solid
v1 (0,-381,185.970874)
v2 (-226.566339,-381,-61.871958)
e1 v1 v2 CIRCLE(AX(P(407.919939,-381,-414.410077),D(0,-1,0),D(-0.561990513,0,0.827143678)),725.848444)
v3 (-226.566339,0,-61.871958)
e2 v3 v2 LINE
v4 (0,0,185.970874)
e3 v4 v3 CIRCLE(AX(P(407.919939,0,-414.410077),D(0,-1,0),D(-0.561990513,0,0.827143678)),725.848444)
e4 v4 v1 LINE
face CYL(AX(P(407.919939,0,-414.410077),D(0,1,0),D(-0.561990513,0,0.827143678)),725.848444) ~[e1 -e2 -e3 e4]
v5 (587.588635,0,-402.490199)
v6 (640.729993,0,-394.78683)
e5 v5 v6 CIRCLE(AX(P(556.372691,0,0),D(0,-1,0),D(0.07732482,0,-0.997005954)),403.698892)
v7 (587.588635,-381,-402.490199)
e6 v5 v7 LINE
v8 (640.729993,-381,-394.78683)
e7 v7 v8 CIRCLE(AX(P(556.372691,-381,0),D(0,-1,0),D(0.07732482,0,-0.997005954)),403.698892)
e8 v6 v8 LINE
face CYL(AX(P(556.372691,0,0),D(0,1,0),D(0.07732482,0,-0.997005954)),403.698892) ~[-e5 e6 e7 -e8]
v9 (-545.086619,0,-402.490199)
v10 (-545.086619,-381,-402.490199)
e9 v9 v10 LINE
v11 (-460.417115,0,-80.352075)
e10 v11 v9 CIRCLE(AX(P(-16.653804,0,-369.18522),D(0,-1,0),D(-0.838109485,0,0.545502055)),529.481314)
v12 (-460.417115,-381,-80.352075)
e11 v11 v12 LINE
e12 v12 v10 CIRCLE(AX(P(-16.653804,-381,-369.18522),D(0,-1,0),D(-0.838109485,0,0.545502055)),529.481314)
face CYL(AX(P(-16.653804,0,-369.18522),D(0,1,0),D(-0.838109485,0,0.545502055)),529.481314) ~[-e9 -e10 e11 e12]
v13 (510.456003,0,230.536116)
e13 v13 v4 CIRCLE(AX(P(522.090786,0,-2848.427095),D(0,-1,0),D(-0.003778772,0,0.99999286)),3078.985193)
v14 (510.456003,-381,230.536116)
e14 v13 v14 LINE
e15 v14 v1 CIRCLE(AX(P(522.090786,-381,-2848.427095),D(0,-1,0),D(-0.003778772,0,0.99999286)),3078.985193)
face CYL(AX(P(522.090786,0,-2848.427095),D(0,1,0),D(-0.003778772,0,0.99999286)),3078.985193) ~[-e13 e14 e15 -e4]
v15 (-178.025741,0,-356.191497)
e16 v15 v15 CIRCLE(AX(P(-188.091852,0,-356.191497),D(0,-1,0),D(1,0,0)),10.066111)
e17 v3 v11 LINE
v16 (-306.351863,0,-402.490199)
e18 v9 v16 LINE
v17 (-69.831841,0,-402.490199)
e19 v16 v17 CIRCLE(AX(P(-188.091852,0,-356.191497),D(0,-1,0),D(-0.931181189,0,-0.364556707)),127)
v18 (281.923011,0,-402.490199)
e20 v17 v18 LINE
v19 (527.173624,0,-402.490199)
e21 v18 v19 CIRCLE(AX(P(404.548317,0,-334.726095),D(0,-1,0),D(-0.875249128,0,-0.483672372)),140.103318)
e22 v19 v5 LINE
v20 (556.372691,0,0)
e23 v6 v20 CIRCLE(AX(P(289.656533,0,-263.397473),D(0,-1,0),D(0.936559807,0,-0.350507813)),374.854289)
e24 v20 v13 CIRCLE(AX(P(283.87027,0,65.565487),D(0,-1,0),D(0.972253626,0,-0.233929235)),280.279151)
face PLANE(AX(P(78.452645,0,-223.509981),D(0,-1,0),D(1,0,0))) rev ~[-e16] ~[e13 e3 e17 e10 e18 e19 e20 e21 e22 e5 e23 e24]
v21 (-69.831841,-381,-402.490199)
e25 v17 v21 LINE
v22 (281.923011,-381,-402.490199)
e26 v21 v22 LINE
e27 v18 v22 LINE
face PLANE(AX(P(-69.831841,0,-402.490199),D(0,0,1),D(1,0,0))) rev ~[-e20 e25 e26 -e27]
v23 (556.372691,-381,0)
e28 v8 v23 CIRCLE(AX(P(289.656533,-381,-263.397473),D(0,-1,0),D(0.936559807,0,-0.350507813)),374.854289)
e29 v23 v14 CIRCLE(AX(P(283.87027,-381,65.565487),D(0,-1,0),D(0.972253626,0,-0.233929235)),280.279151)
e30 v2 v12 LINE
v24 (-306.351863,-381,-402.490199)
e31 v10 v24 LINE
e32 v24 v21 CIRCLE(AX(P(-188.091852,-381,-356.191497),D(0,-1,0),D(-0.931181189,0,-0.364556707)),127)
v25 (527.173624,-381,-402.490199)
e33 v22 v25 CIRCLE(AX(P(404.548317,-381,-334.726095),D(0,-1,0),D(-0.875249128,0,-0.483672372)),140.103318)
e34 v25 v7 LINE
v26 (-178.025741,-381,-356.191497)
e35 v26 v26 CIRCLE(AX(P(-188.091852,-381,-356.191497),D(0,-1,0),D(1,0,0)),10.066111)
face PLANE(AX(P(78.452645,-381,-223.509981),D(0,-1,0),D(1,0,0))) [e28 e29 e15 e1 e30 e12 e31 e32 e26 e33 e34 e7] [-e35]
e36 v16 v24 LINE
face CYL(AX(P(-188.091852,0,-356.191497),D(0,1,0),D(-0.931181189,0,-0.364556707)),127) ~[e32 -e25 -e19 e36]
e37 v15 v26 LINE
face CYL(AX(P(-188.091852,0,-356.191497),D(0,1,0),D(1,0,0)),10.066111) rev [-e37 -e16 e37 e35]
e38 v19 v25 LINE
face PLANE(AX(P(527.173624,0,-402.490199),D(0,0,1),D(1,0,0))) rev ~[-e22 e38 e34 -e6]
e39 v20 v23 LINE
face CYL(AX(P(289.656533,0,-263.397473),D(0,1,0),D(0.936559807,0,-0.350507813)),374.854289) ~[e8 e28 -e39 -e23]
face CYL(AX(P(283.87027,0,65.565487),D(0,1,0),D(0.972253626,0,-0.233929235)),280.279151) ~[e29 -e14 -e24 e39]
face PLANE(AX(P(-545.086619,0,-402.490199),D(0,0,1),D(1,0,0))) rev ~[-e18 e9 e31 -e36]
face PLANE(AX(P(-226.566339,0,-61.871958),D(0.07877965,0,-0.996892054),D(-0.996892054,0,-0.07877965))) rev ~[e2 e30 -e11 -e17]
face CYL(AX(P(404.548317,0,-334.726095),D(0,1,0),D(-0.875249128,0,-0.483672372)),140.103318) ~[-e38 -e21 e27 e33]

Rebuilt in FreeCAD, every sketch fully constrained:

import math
import FreeCAD as App
import Part
import Sketcher
Q = App.Units.Quantity

doc = App.newDocument("Part")
params = doc.addObject("Spreadsheet::Sheet", "Params")
for row, (alias, value) in enumerate([
    ("sketch1_radius", "5 in"),
    ("pad1_length", "15 in"),
], start=1):
    params.set(f"A{row}", alias)
    params.set(f"B{row}", "=" + value)
    params.setAlias(f"B{row}", alias)

body = doc.addObject("PartDesign::Body", "Body")

sketch1 = doc.addObject("Sketcher::SketchObject", "Sketch")
body.addObject(sketch1)
sketch1.AttachmentSupport = (doc.XZ_Plane, [""])
sketch1.MapMode = "FlatFace"
sketch1.addGeometry([
    Part.ArcOfCircle(Part.Circle(App.Vector(-188, -356, 0), App.Vector(0, 0, 1), 127), math.radians(-159), math.radians(-21)),
    Part.LineSegment(App.Vector(-70, -402, 0), App.Vector(282, -402, 0)),
    Part.ArcOfCircle(Part.Circle(App.Vector(405, -335, 0), App.Vector(0, 0, 1), 140), math.radians(-151), math.radians(-29)),
    Part.LineSegment(App.Vector(527, -402, 0), App.Vector(588, -402, 0)),
    Part.ArcOfCircle(Part.Circle(App.Vector(556, 0, 0), App.Vector(0, 0, 1), 404), math.radians(-85.57), math.radians(-77.94)),
    Part.ArcOfCircle(Part.Circle(App.Vector(290, -263, 0), App.Vector(0, 0, 1), 375), math.radians(-21), math.radians(45)),
    Part.ArcOfCircle(Part.Circle(App.Vector(284, 66, 0), App.Vector(0, 0, 1), 280), math.radians(-14), math.radians(36)),
    Part.ArcOfCircle(Part.Circle(App.Vector(522, -2848, 0), App.Vector(0, 0, 1), 3079), math.radians(90.22), math.radians(99.76)),
    Part.ArcOfCircle(Part.Circle(App.Vector(408, -414, 0), App.Vector(0, 0, 1), 726), math.radians(124), math.radians(151)),
    Part.LineSegment(App.Vector(-227, -62, 0), App.Vector(-460, -80, 0)),
    Part.ArcOfCircle(Part.Circle(App.Vector(-17, -369, 0), App.Vector(0, 0, 1), 529), math.radians(147), math.radians(184)),
    Part.LineSegment(App.Vector(-545, -402, 0), App.Vector(-306, -402, 0)),
    Part.Circle(App.Vector(-188, -356, 0), App.Vector(0, 0, 1), 10),
], False)
sketch1.addConstraint([
    Sketcher.Constraint("Coincident", 0, 2, 1, 1),
    Sketcher.Constraint("Coincident", 1, 2, 2, 1),
    Sketcher.Constraint("Coincident", 2, 2, 3, 1),
    Sketcher.Constraint("Coincident", 3, 2, 4, 1),
    Sketcher.Constraint("Coincident", 4, 2, 5, 1),
    Sketcher.Constraint("Coincident", 5, 2, 6, 1),
    Sketcher.Constraint("Coincident", 6, 2, 7, 1),
    Sketcher.Constraint("Coincident", 7, 2, 8, 1),
    Sketcher.Constraint("Coincident", 8, 2, 9, 1),
    Sketcher.Constraint("Coincident", 9, 2, 10, 1),
    Sketcher.Constraint("Coincident", 10, 2, 11, 1),
    Sketcher.Constraint("Coincident", 11, 2, 0, 1),
    Sketcher.Constraint("Horizontal", 1),
    Sketcher.Constraint("Horizontal", 3),
    Sketcher.Constraint("Horizontal", 11),
    Sketcher.Constraint("Coincident", 12, 3, 0, 3),
    Sketcher.Constraint("Coincident", 5, 2, 4, 3),
    Sketcher.Constraint("PointOnObject", 4, 3, -1),
    Sketcher.Constraint("Horizontal", 1, 2, 2, 2),
    Sketcher.Constraint("Radius", 0, Q("5 in")),
    Sketcher.Constraint("Diameter", 12, Q("20.132222 mm")),
    Sketcher.Constraint("Radius", 5, Q("374.854289 mm")),
    Sketcher.Constraint("Radius", 6, Q("280.279151 mm")),
    Sketcher.Constraint("Radius", 2, Q("140.103318 mm")),
    Sketcher.Constraint("Radius", 4, Q("403.698892 mm")),
    Sketcher.Constraint("Radius", 7, Q("3078.985193 mm")),
    Sketcher.Constraint("Radius", 8, Q("725.848444 mm")),
    Sketcher.Constraint("Radius", 10, Q("529.481314 mm")),
    Sketcher.Constraint("DistanceX", 1, 1, 1, 2, Q("351.754852 mm")),
    Sketcher.Constraint("DistanceX", 3, 1, 3, 2, Q("60.415012 mm")),
    Sketcher.Constraint("DistanceY", 1, 2, -1, 1, Q("402.490199 mm")),
    Sketcher.Constraint("DistanceY", 11, 2, -1, 1, Q("402.490199 mm")),
    Sketcher.Constraint("DistanceY", 7, 3, 2, 3, Q("2513.700999 mm")),
    Sketcher.Constraint("DistanceY", 0, 2, 0, 3, Q("46.298702 mm")),
    Sketcher.Constraint("DistanceX", 8, 2, 0, 2, Q("156.734498 mm")),
    Sketcher.Constraint("DistanceX", 11, 1, 11, 2, Q("238.734755 mm")),
    Sketcher.Constraint("DistanceX", -1, 1, 4, 3, Q("556.372691 mm")),
    Sketcher.Constraint("DistanceX", -1, 1, 6, 3, Q("283.87027 mm")),
    Sketcher.Constraint("DistanceX", -1, 1, 8, 3, Q("407.919939 mm")),
    Sketcher.Constraint("DistanceY", 10, 3, -1, 1, Q("369.18522 mm")),
    Sketcher.Constraint("DistanceX", 0, 2, -1, 1, Q("69.831841 mm")),
    Sketcher.Constraint("DistanceY", 4, 2, -1, 1, Q("394.78683 mm")),
    Sketcher.Constraint("DistanceX", 2, 3, 7, 3, Q("117.542468 mm")),
    Sketcher.Constraint("DistanceY", 8, 3, 2, 3, Q("79.683982 mm")),
    Sketcher.Constraint("DistanceX", 9, 2, 10, 3, Q("443.763311 mm")),
])
sketch1.setExpression("Constraints[19]", "Params.sketch1_radius")
pad1 = doc.addObject("PartDesign::Pad", "Pad")
body.addObject(pad1)
pad1.Profile = sketch1
pad1.setExpression("Length", "Params.pad1_length")

doc.recompute()
